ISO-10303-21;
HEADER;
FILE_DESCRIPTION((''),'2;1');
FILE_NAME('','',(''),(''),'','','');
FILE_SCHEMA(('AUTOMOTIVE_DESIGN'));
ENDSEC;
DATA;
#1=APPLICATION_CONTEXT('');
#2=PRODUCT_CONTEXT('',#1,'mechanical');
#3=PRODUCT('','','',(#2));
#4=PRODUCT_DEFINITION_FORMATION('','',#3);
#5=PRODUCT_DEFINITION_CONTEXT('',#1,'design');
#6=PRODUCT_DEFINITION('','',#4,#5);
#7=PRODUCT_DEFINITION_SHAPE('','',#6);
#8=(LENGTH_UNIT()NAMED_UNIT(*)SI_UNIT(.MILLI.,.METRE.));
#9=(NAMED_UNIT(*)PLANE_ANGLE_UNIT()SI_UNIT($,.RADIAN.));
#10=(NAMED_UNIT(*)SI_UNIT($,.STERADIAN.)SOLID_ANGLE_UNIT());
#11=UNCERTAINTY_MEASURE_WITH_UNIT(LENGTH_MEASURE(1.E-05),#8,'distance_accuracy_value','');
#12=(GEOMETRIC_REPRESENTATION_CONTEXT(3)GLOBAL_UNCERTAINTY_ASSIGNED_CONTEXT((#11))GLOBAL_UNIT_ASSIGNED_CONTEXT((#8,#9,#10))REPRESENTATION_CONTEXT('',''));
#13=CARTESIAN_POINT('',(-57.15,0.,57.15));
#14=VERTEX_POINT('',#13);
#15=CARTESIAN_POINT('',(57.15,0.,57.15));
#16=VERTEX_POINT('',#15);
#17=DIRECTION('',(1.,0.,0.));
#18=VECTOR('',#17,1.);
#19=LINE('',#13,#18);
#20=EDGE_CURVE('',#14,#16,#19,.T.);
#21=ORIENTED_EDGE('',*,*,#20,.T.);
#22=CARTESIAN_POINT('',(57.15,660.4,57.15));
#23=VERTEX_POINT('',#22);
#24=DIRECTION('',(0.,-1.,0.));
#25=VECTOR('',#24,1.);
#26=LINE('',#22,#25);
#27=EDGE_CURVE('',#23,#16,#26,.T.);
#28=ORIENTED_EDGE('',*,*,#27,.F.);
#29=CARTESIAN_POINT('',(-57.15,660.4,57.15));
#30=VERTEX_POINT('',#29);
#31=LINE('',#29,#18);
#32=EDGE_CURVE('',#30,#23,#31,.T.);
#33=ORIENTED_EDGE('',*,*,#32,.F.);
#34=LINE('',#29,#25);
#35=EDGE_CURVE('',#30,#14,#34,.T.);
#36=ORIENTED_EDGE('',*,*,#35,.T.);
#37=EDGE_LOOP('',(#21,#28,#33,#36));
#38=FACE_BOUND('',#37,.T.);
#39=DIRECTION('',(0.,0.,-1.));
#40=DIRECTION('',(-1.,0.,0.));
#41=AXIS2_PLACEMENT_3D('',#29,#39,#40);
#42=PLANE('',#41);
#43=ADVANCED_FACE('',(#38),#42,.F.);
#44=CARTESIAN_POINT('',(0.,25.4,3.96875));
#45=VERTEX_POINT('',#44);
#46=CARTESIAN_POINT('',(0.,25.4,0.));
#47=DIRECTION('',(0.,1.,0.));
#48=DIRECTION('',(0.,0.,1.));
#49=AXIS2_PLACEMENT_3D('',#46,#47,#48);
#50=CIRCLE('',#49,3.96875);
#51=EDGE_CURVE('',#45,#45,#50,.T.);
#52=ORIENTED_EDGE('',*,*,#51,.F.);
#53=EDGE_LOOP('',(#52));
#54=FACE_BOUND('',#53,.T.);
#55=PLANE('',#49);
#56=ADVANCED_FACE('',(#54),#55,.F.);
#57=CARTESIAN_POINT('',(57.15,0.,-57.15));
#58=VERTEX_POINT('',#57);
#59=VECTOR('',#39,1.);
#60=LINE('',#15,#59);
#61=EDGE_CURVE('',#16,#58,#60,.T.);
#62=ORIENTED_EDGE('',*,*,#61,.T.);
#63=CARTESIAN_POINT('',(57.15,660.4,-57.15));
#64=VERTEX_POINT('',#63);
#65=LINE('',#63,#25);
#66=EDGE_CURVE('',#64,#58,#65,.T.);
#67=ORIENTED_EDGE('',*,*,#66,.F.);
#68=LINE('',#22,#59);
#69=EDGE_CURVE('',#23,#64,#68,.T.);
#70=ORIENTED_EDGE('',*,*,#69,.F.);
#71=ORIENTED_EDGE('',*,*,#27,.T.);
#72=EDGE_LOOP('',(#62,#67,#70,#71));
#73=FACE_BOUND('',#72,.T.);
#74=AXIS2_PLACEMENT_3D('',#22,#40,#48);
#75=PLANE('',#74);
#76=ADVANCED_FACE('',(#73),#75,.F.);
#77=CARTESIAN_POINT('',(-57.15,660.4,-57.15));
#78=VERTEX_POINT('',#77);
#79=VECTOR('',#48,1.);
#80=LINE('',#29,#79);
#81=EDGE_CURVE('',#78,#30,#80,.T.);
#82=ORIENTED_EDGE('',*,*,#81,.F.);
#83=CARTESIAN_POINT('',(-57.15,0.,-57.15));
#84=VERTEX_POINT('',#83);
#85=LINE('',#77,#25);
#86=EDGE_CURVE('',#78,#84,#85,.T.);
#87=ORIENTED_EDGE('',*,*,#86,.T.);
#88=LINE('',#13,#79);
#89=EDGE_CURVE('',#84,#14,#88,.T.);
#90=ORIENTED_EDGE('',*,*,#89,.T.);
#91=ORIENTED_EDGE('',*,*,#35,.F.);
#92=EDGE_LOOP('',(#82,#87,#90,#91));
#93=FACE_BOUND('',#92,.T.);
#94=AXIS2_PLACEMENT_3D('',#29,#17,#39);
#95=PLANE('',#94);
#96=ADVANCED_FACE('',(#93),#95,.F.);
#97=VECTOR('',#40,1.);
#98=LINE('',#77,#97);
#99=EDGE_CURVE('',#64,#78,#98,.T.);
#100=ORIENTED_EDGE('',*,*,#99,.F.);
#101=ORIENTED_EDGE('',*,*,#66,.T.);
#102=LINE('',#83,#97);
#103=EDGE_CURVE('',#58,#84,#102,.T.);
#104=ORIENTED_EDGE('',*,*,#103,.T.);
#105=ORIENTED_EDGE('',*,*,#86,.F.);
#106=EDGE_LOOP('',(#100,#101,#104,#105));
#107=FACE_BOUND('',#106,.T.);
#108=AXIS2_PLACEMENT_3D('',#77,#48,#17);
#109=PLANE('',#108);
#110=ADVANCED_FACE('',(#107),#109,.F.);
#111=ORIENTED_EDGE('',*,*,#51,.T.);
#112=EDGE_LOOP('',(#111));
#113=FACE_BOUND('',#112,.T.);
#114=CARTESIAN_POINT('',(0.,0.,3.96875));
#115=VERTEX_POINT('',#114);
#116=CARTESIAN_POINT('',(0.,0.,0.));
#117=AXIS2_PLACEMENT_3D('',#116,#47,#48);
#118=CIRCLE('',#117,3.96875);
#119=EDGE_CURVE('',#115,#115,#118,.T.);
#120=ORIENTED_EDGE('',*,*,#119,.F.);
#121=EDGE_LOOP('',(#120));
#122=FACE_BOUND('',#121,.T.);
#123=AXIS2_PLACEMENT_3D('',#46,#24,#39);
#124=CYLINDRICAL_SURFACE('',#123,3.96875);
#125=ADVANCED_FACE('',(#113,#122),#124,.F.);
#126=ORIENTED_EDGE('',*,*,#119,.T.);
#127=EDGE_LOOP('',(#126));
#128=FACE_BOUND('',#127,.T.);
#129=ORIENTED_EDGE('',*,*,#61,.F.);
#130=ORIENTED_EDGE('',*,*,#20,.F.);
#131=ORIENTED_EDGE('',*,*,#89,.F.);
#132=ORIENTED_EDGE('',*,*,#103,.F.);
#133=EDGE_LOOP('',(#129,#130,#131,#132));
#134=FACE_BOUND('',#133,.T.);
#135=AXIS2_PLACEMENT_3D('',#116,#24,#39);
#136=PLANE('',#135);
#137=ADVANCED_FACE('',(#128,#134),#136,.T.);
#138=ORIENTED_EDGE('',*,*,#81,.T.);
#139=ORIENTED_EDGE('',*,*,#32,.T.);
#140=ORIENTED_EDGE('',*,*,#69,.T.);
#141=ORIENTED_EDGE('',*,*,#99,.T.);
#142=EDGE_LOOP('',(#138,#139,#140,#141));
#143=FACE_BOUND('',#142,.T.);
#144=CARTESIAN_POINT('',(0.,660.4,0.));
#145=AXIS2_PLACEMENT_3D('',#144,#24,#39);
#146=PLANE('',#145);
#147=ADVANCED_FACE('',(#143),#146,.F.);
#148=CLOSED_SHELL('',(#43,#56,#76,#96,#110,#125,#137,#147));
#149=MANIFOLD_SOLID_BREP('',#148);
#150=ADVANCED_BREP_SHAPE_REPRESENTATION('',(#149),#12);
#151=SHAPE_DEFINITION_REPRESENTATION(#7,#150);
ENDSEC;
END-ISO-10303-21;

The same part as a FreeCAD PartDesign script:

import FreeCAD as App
import Part
import Sketcher

V = App.Vector
Q = App.Units.Quantity

doc = App.newDocument("Part")
params = doc.addObject("Spreadsheet::Sheet", "Params")
for row, (alias, value) in enumerate([
    ("sketch1_width", "4.5 in"),
    ("pad1_length", "26 in"),
    ("sketch2_diameter", "0.3125 in"),
    ("pocket1_length", "1 in"),
], start=1):
    params.set(f"A{row}", alias)
    params.set(f"B{row}", "=" + value)
    params.setAlias(f"B{row}", alias)

body = doc.addObject("PartDesign::Body", "Body")

# Sketch on XZ plane
sketch1 = doc.addObject("Sketcher::SketchObject", "Sketch")
body.addObject(sketch1)
sketch1.AttachmentSupport = (doc.XZ_Plane, [""])
sketch1.MapMode = "FlatFace"
sketch1.addGeometry(Part.LineSegment(V(-57, -57, 0), V(-57, 57, 0)), False)
sketch1.addGeometry(Part.LineSegment(V(-57, 57, 0), V(57, 57, 0)), False)
sketch1.addGeometry(Part.LineSegment(V(57, 57, 0), V(57, -57, 0)), False)
sketch1.addGeometry(Part.LineSegment(V(57, -57, 0), V(-57, -57, 0)), False)
sketch1.addConstraint(Sketcher.Constraint("Coincident", 0, 2, 1, 1))
sketch1.addConstraint(Sketcher.Constraint("Coincident", 1, 2, 2, 1))
sketch1.addConstraint(Sketcher.Constraint("Coincident", 2, 2, 3, 1))
sketch1.addConstraint(Sketcher.Constraint("Coincident", 3, 2, 0, 1))
sketch1.addConstraint(Sketcher.Constraint("Vertical", 0))
sketch1.addConstraint(Sketcher.Constraint("Horizontal", 1))
sketch1.addConstraint(Sketcher.Constraint("Vertical", 2))
sketch1.addConstraint(Sketcher.Constraint("Horizontal", 3))
sketch1.addConstraint(Sketcher.Constraint("Symmetric", 0, 2, 2, 2, -1, 1))
sketch1.addConstraint(Sketcher.Constraint("Equal", 3, 0))
sketch1.addConstraint(Sketcher.Constraint("DistanceX", 1, 1, 1, 2, Q("4.5 in")))
sketch1.setExpression("Constraints[10]", "Params.sketch1_width")
pad1 = doc.addObject("PartDesign::Pad", "Pad")
body.addObject(pad1)
pad1.Profile = sketch1
pad1.setExpression("Length", "Params.pad1_length")
pad1.Reversed = True

# Sketch on XZ plane
sketch2 = doc.addObject("Sketcher::SketchObject", "Sketch001")
body.addObject(sketch2)
sketch2.AttachmentSupport = (doc.XZ_Plane, [""])
sketch2.MapMode = "FlatFace"
sketch2.addGeometry(Part.Circle(V(0, 0, 0), V(0, 0, 1), 4), False)
sketch2.addConstraint(Sketcher.Constraint("Coincident", 0, 3, -1, 1))
sketch2.addConstraint(Sketcher.Constraint("Diameter", 0, Q("0.3125 in")))
sketch2.setExpression("Constraints[1]", "Params.sketch2_diameter")
pocket1 = doc.addObject("PartDesign::Pocket", "Pocket")
body.addObject(pocket1)
pocket1.Profile = sketch2
pocket1.setExpression("Length", "Params.pocket1_length")

doc.recompute()
